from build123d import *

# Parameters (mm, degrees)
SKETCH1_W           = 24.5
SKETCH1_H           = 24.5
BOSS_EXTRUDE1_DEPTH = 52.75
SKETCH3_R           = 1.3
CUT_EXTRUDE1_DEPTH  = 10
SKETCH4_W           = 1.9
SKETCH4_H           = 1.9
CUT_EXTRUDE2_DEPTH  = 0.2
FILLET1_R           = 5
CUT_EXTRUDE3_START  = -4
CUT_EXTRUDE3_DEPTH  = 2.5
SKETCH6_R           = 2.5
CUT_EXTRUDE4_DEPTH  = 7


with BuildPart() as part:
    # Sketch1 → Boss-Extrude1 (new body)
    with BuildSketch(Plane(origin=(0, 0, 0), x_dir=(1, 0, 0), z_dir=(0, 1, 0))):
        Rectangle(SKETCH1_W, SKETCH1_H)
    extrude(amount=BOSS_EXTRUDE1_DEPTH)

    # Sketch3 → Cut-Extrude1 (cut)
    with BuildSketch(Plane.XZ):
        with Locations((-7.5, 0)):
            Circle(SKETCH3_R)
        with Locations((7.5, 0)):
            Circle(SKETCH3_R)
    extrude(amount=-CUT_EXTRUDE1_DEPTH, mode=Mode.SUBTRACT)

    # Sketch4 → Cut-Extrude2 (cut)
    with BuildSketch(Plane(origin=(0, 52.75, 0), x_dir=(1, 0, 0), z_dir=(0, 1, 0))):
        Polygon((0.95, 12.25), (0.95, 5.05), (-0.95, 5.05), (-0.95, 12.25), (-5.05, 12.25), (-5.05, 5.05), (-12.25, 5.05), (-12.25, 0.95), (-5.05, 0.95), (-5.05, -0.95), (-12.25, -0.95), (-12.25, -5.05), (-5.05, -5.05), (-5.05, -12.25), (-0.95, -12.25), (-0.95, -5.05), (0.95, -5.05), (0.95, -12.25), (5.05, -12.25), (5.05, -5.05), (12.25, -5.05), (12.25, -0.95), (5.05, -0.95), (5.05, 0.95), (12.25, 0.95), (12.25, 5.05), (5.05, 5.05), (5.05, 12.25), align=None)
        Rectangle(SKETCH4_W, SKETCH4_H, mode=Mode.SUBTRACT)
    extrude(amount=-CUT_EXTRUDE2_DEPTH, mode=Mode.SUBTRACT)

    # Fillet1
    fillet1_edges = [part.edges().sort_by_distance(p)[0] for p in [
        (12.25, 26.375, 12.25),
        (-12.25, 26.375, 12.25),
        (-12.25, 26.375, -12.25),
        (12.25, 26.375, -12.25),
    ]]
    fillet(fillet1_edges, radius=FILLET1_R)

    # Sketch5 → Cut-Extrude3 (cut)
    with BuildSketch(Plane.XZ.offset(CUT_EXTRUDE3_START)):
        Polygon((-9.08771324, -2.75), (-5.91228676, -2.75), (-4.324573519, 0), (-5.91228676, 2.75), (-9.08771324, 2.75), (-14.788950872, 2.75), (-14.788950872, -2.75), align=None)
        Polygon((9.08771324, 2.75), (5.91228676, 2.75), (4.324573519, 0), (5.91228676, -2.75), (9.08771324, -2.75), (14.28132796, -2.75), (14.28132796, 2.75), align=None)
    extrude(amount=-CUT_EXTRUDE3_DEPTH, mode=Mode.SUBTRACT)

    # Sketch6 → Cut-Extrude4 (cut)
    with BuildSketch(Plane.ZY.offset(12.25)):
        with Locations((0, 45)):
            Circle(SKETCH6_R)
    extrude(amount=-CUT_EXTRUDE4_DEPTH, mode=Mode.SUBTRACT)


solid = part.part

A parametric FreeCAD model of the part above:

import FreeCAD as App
import Part
import Sketcher
from FreeCAD import Vector
Q = App.Units.Quantity


def edges_at(feature, points):
    """Names of the edges that pass closest to the given points."""
    edges = feature.Shape.Edges
    near = lambda p: min(range(len(edges)), key=lambda i: edges[i].distToShape(Part.Vertex(*p))[0])
    return sorted({f"Edge{near(p) + 1}" for p in points})

doc = App.newDocument("Part")
body = doc.addObject("PartDesign::Body", "Body")

sketch1 = body.newObject("Sketcher::SketchObject", "Sketch")
sketch1.AttachmentSupport = (doc.getObject("XZ_Plane"), [""])
sketch1.MapMode = "FlatFace"
sketch1.addGeometry(Part.LineSegment(Vector(-12, -12, 0), Vector(-12, 12, 0)), False)
sketch1.addGeometry(Part.LineSegment(Vector(-12, 12, 0), Vector(12, 12, 0)), False)
sketch1.addGeometry(Part.LineSegment(Vector(12, 12, 0), Vector(12, -12, 0)), False)
sketch1.addGeometry(Part.LineSegment(Vector(12, -12, 0), Vector(-12, -12, 0)), False)
sketch1.addConstraint(Sketcher.Constraint("Coincident", 0, 2, 1, 1))
sketch1.addConstraint(Sketcher.Constraint("Coincident", 1, 2, 2, 1))
sketch1.addConstraint(Sketcher.Constraint("Coincident", 2, 2, 3, 1))
sketch1.addConstraint(Sketcher.Constraint("Coincident", 3, 2, 0, 1))
sketch1.addConstraint(Sketcher.Constraint("Vertical", 0))
sketch1.addConstraint(Sketcher.Constraint("Horizontal", 1))
sketch1.addConstraint(Sketcher.Constraint("Vertical", 2))
sketch1.addConstraint(Sketcher.Constraint("Horizontal", 3))
sketch1.addConstraint(Sketcher.Constraint("Symmetric", 0, 2, 2, 2, -1, 1))
sketch1.addConstraint(Sketcher.Constraint("Equal", 3, 0))
sketch1.addConstraint(Sketcher.Constraint("DistanceX", 1, 1, 1, 2, Q("24.5 mm")))
pad1 = body.newObject("PartDesign::Pad", "Pad")
pad1.Profile = sketch1
pad1.Length = 52.75
pad1.Reversed = True

sketch2 = body.newObject("Sketcher::SketchObject", "Sketch001")
sketch2.AttachmentSupport = (doc.getObject("XZ_Plane"), [""])
sketch2.MapMode = "FlatFace"
sketch2.addGeometry(Part.Circle(Vector(-7.5, 0, 0), Vector(0, 0, 1), 1.3), False)
sketch2.addGeometry(Part.Circle(Vector(7.5, 0, 0), Vector(0, 0, 1), 1.3), False)
sketch2.addConstraint(Sketcher.Constraint("Equal", 0, 1))
sketch2.addConstraint(Sketcher.Constraint("Symmetric", 0, 3, 1, 3, -1, 1))
sketch2.addConstraint(Sketcher.Constraint("PointOnObject", 0, 3, -1))
sketch2.addConstraint(Sketcher.Constraint("Diameter", 0, Q("2.6 mm")))
sketch2.addConstraint(Sketcher.Constraint("DistanceX", 0, 3, 1, 3, Q("15 mm")))
pocket1 = body.newObject("PartDesign::Pocket", "Pocket")
pocket1.Profile = sketch2
pocket1.Length = 10

sketch3 = body.newObject("Sketcher::SketchObject", "Sketch002")
sketch3.AttachmentSupport = (doc.getObject("XZ_Plane"), [""])
sketch3.MapMode = "FlatFace"
sketch3.AttachmentOffset = App.Placement(Vector(0, 0, -52.75), App.Rotation())
sketch3.addGeometry(Part.LineSegment(Vector(0.9, -12.2, 0), Vector(0.9, -5, 0)), False)
sketch3.addGeometry(Part.LineSegment(Vector(0.9, -5, 0), Vector(-0.9, -5, 0)), False)
sketch3.addGeometry(Part.LineSegment(Vector(-0.9, -5, 0), Vector(-0.9, -12.2, 0)), False)
sketch3.addGeometry(Part.LineSegment(Vector(-0.9, -12.2, 0), Vector(-5, -12.2, 0)), False)
sketch3.addGeometry(Part.LineSegment(Vector(-5, -12.2, 0), Vector(-5, -5, 0)), False)
sketch3.addGeometry(Part.LineSegment(Vector(-5, -5, 0), Vector(-12.2, -5, 0)), False)
sketch3.addGeometry(Part.LineSegment(Vector(-12.2, -5, 0), Vector(-12.2, -0.9, 0)), False)
sketch3.addGeometry(Part.LineSegment(Vector(-12.2, -0.9, 0), Vector(-5, -0.9, 0)), False)
sketch3.addGeometry(Part.LineSegment(Vector(-5, -0.9, 0), Vector(-5, 0.9, 0)), False)
sketch3.addGeometry(Part.LineSegment(Vector(-5, 0.9, 0), Vector(-12.2, 0.9, 0)), False)
sketch3.addGeometry(Part.LineSegment(Vector(-12.2, 0.9, 0), Vector(-12.2, 5, 0)), False)
sketch3.addGeometry(Part.LineSegment(Vector(-12.2, 5, 0), Vector(-5, 5, 0)), False)
sketch3.addGeometry(Part.LineSegment(Vector(-5, 5, 0), Vector(-5, 12.2, 0)), False)
sketch3.addGeometry(Part.LineSegment(Vector(-5, 12.2, 0), Vector(-0.9, 12.2, 0)), False)
sketch3.addGeometry(Part.LineSegment(Vector(-0.9, 12.2, 0), Vector(-0.9, 5, 0)), False)
sketch3.addGeometry(Part.LineSegment(Vector(-0.9, 5, 0), Vector(0.9, 5, 0)), False)
sketch3.addGeometry(Part.LineSegment(Vector(0.9, 5, 0), Vector(0.9, 12.2, 0)), False)
sketch3.addGeometry(Part.LineSegment(Vector(0.9, 12.2, 0), Vector(5, 12.2, 0)), False)
sketch3.addGeometry(Part.LineSegment(Vector(5, 12.2, 0), Vector(5, 5, 0)), False)
sketch3.addGeometry(Part.LineSegment(Vector(5, 5, 0), Vector(12.2, 5, 0)), False)
sketch3.addGeometry(Part.LineSegment(Vector(12.2, 5, 0), Vector(12.2, 0.9, 0)), False)
sketch3.addGeometry(Part.LineSegment(Vector(12.2, 0.9, 0), Vector(5, 0.9, 0)), False)
sketch3.addGeometry(Part.LineSegment(Vector(5, 0.9, 0), Vector(5, -0.9, 0)), False)
sketch3.addGeometry(Part.LineSegment(Vector(5, -0.9, 0), Vector(12.2, -0.9, 0)), False)
sketch3.addGeometry(Part.LineSegment(Vector(12.2, -0.9, 0), Vector(12.2, -5, 0)), False)
sketch3.addGeometry(Part.LineSegment(Vector(12.2, -5, 0), Vector(5, -5, 0)), False)
sketch3.addGeometry(Part.LineSegment(Vector(5, -5, 0), Vector(5, -12.2, 0)), False)
sketch3.addGeometry(Part.LineSegment(Vector(5, -12.2, 0), Vector(0.9, -12.2, 0)), False)
sketch3.addGeometry(Part.LineSegment(Vector(0.9, 0.9, 0), Vector(-0.9, 0.9, 0)), False)
sketch3.addGeometry(Part.LineSegment(Vector(-0.9, 0.9, 0), Vector(-0.9, -0.9, 0)), False)
sketch3.addGeometry(Part.LineSegment(Vector(-0.9, -0.9, 0), Vector(0.9, -0.9, 0)), False)
sketch3.addGeometry(Part.LineSegment(Vector(0.9, -0.9, 0), Vector(0.9, 0.9, 0)), False)
sketch3.addConstraint(Sketcher.Constraint("Coincident", 0, 2, 1, 1))
sketch3.addConstraint(Sketcher.Constraint("Coincident", 1, 2, 2, 1))
sketch3.addConstraint(Sketcher.Constraint("Coincident", 2, 2, 3, 1))
sketch3.addConstraint(Sketcher.Constraint("Coincident", 3, 2, 4, 1))
sketch3.addConstraint(Sketcher.Constraint("Coincident", 4, 2, 5, 1))
sketch3.addConstraint(Sketcher.Constraint("Coincident", 5, 2, 6, 1))
sketch3.addConstraint(Sketcher.Constraint("Coincident", 6, 2, 7, 1))
sketch3.addConstraint(Sketcher.Constraint("Coincident", 7, 2, 8, 1))
sketch3.addConstraint(Sketcher.Constraint("Coincident", 8, 2, 9, 1))
sketch3.addConstraint(Sketcher.Constraint("Coincident", 9, 2, 10, 1))
sketch3.addConstraint(Sketcher.Constraint("Coincident", 10, 2, 11, 1))
sketch3.addConstraint(Sketcher.Constraint("Coincident", 11, 2, 12, 1))
sketch3.addConstraint(Sketcher.Constraint("Coincident", 12, 2, 13, 1))
sketch3.addConstraint(Sketcher.Constraint("Coincident", 13, 2, 14, 1))
sketch3.addConstraint(Sketcher.Constraint("Coincident", 14, 2, 15, 1))
sketch3.addConstraint(Sketcher.Constraint("Coincident", 15, 2, 16, 1))
sketch3.addConstraint(Sketcher.Constraint("Coincident", 16, 2, 17, 1))
sketch3.addConstraint(Sketcher.Constraint("Coincident", 17, 2, 18, 1))
sketch3.addConstraint(Sketcher.Constraint("Coincident", 18, 2, 19, 1))
sketch3.addConstraint(Sketcher.Constraint("Coincident", 19, 2, 20, 1))
sketch3.addConstraint(Sketcher.Constraint("Coincident", 20, 2, 21, 1))
sketch3.addConstraint(Sketcher.Constraint("Coincident", 21, 2, 22, 1))
sketch3.addConstraint(Sketcher.Constraint("Coincident", 22, 2, 23, 1))
sketch3.addConstraint(Sketcher.Constraint("Coincident", 23, 2, 24, 1))
sketch3.addConstraint(Sketcher.Constraint("Coincident", 24, 2, 25, 1))
sketch3.addConstraint(Sketcher.Constraint("Coincident", 25, 2, 26, 1))
sketch3.addConstraint(Sketcher.Constraint("Coincident", 26, 2, 27, 1))
sketch3.addConstraint(Sketcher.Constraint("Coincident", 27, 2, 0, 1))
sketch3.addConstraint(Sketcher.Constraint("Coincident", 28, 2, 29, 1))
sketch3.addConstraint(Sketcher.Constraint("Coincident", 29, 2, 30, 1))
sketch3.addConstraint(Sketcher.Constraint("Coincident", 30, 2, 31, 1))
sketch3.addConstraint(Sketcher.Constraint("Coincident", 31, 2, 28, 1))
sketch3.addConstraint(Sketcher.Constraint("Vertical", 0))
sketch3.addConstraint(Sketcher.Constraint("Horizontal", 1))
sketch3.addConstraint(Sketcher.Constraint("Vertical", 2))
sketch3.addConstraint(Sketcher.Constraint("Horizontal", 3))
sketch3.addConstraint(Sketcher.Constraint("Vertical", 4))
sketch3.addConstraint(Sketcher.Constraint("Horizontal", 5))
sketch3.addConstraint(Sketcher.Constraint("Vertical", 6))
sketch3.addConstraint(Sketcher.Constraint("Horizontal", 7))
sketch3.addConstraint(Sketcher.Constraint("Vertical", 8))
sketch3.addConstraint(Sketcher.Constraint("Horizontal", 9))
sketch3.addConstraint(Sketcher.Constraint("Vertical", 10))
sketch3.addConstraint(Sketcher.Constraint("Horizontal", 11))
sketch3.addConstraint(Sketcher.Constraint("Vertical", 12))
sketch3.addConstraint(Sketcher.Constraint("Horizontal", 13))
sketch3.addConstraint(Sketcher.Constraint("Vertical", 14))
sketch3.addConstraint(Sketcher.Constraint("Horizontal", 15))
sketch3.addConstraint(Sketcher.Constraint("Vertical", 16))
sketch3.addConstraint(Sketcher.Constraint("Horizontal", 17))
sketch3.addConstraint(Sketcher.Constraint("Vertical", 18))
sketch3.addConstraint(Sketcher.Constraint("Horizontal", 19))
sketch3.addConstraint(Sketcher.Constraint("Vertical", 20))
sketch3.addConstraint(Sketcher.Constraint("Horizontal", 21))
sketch3.addConstraint(Sketcher.Constraint("Vertical", 22))
sketch3.addConstraint(Sketcher.Constraint("Horizontal", 23))
sketch3.addConstraint(Sketcher.Constraint("Vertical", 24))
sketch3.addConstraint(Sketcher.Constraint("Horizontal", 25))
sketch3.addConstraint(Sketcher.Constraint("Vertical", 26))
sketch3.addConstraint(Sketcher.Constraint("Horizontal", 27))
sketch3.addConstraint(Sketcher.Constraint("Horizontal", 28))
sketch3.addConstraint(Sketcher.Constraint("Vertical", 29))
sketch3.addConstraint(Sketcher.Constraint("Horizontal", 30))
sketch3.addConstraint(Sketcher.Constraint("Vertical", 31))
sketch3.addConstraint(Sketcher.Constraint("Symmetric", 0, 2, 14, 2, -1, 1))
sketch3.addConstraint(Sketcher.Constraint("Symmetric", 2, 2, 16, 2, -1, 1))
sketch3.addConstraint(Sketcher.Constraint("Symmetric", 4, 2, 18, 2, -1, 1))
sketch3.addConstraint(Sketcher.Constraint("Symmetric", 6, 2, 20, 2, -1, 1))
sketch3.addConstraint(Sketcher.Constraint("Symmetric", 8, 2, 22, 2, -1, 1))
sketch3.addConstraint(Sketcher.Constraint("Symmetric", 10, 2, 24, 2, -1, 1))
sketch3.addConstraint(Sketcher.Constraint("Symmetric", 12, 2, 26, 2, -1, 1))
sketch3.addConstraint(Sketcher.Constraint("Symmetric", 28, 2, 30, 2, -1, 1))
sketch3.addConstraint(Sketcher.Constraint("Symmetric", 13, 2, 16, 2, -2))
sketch3.addConstraint(Sketcher.Constraint("Symmetric", 11, 2, 18, 2, -2))
sketch3.addConstraint(Sketcher.Constraint("Symmetric", 9, 2, 20, 2, -2))
sketch3.addConstraint(Sketcher.Constraint("Horizontal", 1, 2, 4, 2))
sketch3.addConstraint(Sketcher.Constraint("Horizontal", 21, 2, 28, 2))
sketch3.addConstraint(Sketcher.Constraint("Vertical", 4, 2, 7, 2))
sketch3.addConstraint(Sketcher.Constraint("Vertical", 14, 2, 28, 2))
sketch3.addConstraint(Sketcher.Constraint("Equal", 25, 0))
sketch3.addConstraint(Sketcher.Constraint("Equal", 27, 6))
sketch3.addConstraint(Sketcher.Constraint("Equal", 30, 8))
sketch3.addConstraint(Sketcher.Constraint("DistanceX", 1, 2, 1, 1, Q("1.9 mm")))
sketch3.addConstraint(Sketcher.Constraint("DistanceX", 3, 2, 3, 1, Q("4.1 mm")))
sketch3.addConstraint(Sketcher.Constraint("DistanceX", 5, 2, 5, 1, Q("7.2 mm")))
pocket2 = body.newObject("PartDesign::Pocket", "Pocket001")
pocket2.Profile = sketch3
pocket2.Length = 0.2
pocket2.Reversed = True
doc.recompute()

fillet = body.newObject("PartDesign::Fillet", "Fillet")
fillet.Base = (pocket2, edges_at(pocket2, [
    (12.25, 26.375, 12.25),
    (-12.25, 26.375, 12.25),
    (-12.25, 26.375, -12.25),
    (12.25, 26.375, -12.25),
]))
fillet.Radius = 5

sketch4 = body.newObject("Sketcher::SketchObject", "Sketch003")
sketch4.AttachmentSupport = (doc.getObject("XZ_Plane"), [""])
sketch4.MapMode = "FlatFace"
sketch4.AttachmentOffset = App.Placement(Vector(0, 0, -4), App.Rotation())
sketch4.addGeometry(Part.LineSegment(Vector(-5.9, -2.8, 0), Vector(-4.3, 0, 0)), False)
sketch4.addGeometry(Part.LineSegment(Vector(-4.3, 0, 0), Vector(-5.9, 2.8, 0)), False)
sketch4.addGeometry(Part.LineSegment(Vector(-5.9, 2.8, 0), Vector(-14.8, 2.8, 0)), False)
sketch4.addGeometry(Part.LineSegment(Vector(-14.8, 2.8, 0), Vector(-14.8, -2.8, 0)), False)
sketch4.addGeometry(Part.LineSegment(Vector(-14.8, -2.8, 0), Vector(-5.9, -2.8, 0)), False)
sketch4.addGeometry(Part.LineSegment(Vector(5.9, 2.8, 0), Vector(4.3, 0, 0)), False)
sketch4.addGeometry(Part.LineSegment(Vector(4.3, 0, 0), Vector(5.9, -2.8, 0)), False)
sketch4.addGeometry(Part.LineSegment(Vector(5.9, -2.8, 0), Vector(14.3, -2.8, 0)), False)
sketch4.addGeometry(Part.LineSegment(Vector(14.3, -2.8, 0), Vector(14.3, 2.8, 0)), False)
sketch4.addGeometry(Part.LineSegment(Vector(14.3, 2.8, 0), Vector(5.9, 2.8, 0)), False)
sketch4.addConstraint(Sketcher.Constraint("Coincident", 0, 2, 1, 1))
sketch4.addConstraint(Sketcher.Constraint("Coincident", 1, 2, 2, 1))
sketch4.addConstraint(Sketcher.Constraint("Coincident", 2, 2, 3, 1))
sketch4.addConstraint(Sketcher.Constraint("Coincident", 3, 2, 4, 1))
sketch4.addConstraint(Sketcher.Constraint("Coincident", 4, 2, 0, 1))
sketch4.addConstraint(Sketcher.Constraint("Coincident", 5, 2, 6, 1))
sketch4.addConstraint(Sketcher.Constraint("Coincident", 6, 2, 7, 1))
sketch4.addConstraint(Sketcher.Constraint("Coincident", 7, 2, 8, 1))
sketch4.addConstraint(Sketcher.Constraint("Coincident", 8, 2, 9, 1))
sketch4.addConstraint(Sketcher.Constraint("Coincident", 9, 2, 5, 1))
sketch4.addConstraint(Sketcher.Constraint("Horizontal", 2))
sketch4.addConstraint(Sketcher.Constraint("Vertical", 3))
sketch4.addConstraint(Sketcher.Constraint("Horizontal", 4))
sketch4.addConstraint(Sketcher.Constraint("Horizontal", 7))
sketch4.addConstraint(Sketcher.Constraint("Vertical", 8))
sketch4.addConstraint(Sketcher.Constraint("Horizontal", 9))
sketch4.addConstraint(Sketcher.Constraint("Symmetric", 0, 2, 5, 2, -1, 1))
sketch4.addConstraint(Sketcher.Constraint("Symmetric", 1, 2, 6, 2, -1, 1))
sketch4.addConstraint(Sketcher.Constraint("Symmetric", 4, 2, 9, 2, -1, 1))
sketch4.addConstraint(Sketcher.Constraint("Symmetric", 4, 2, 6, 2, -2))
sketch4.addConstraint(Sketcher.Constraint("PointOnObject", 0, 2, -1))
sketch4.addConstraint(Sketcher.Constraint("Angle", 0, Q("60 deg")))
sketch4.addConstraint(Sketcher.Constraint("DistanceY", 3, 2, 3, 1, Q("5.5 mm")))
sketch4.addConstraint(Sketcher.Constraint("DistanceX", 7, 1, 7, 2, Q("8.369041 mm")))
sketch4.addConstraint(Sketcher.Constraint("DistanceX", 0, 2, 7, 2, Q("18.605901 mm")))
sketch4.addConstraint(Sketcher.Constraint("DistanceX", 2, 2, 2, 1, Q("8.876664 mm")))
pocket3 = body.newObject("PartDesign::Pocket", "Pocket002")
pocket3.Profile = sketch4
pocket3.Length = 2.5

sketch5 = body.newObject("Sketcher::SketchObject", "Sketch004")
sketch5.AttachmentSupport = (doc.getObject("YZ_Plane"), [""])
sketch5.MapMode = "FlatFace"
sketch5.AttachmentOffset = App.Placement(Vector(0, 0, -12.25), App.Rotation())
sketch5.addGeometry(Part.Circle(Vector(45, 0, 0), Vector(0, 0, 1), 2.5), False)
sketch5.addConstraint(Sketcher.Constraint("PointOnObject", 0, 3, -1))
sketch5.addConstraint(Sketcher.Constraint("Diameter", 0, Q("5 mm")))
sketch5.addConstraint(Sketcher.Constraint("DistanceX", -1, 1, 0, 3, Q("45 mm")))
pocket4 = body.newObject("PartDesign::Pocket", "Pocket003")
pocket4.Profile = sketch5
pocket4.Length = 7
pocket4.Reversed = True

doc.recompute()
